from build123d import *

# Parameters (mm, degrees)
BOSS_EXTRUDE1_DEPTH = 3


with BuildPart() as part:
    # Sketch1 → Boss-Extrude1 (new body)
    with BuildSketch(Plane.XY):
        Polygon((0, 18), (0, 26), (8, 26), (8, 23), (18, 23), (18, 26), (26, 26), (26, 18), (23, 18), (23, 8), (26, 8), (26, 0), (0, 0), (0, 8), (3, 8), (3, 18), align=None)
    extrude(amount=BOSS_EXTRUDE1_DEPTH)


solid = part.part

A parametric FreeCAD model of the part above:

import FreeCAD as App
import Part
import Sketcher

doc = App.newDocument("Part")
params = doc.addObject("Spreadsheet::Sheet", "Params")
for row, (alias, value) in enumerate([
    ("sketch1_width", "3 mm"),
    ("sketch1_width2", "26 mm"),
    ("sketch1_width3", "8 mm"),
    ("pad1_length", "3 mm"),
], start=1):
    params.set(f"A{row}", alias)
    params.set(f"B{row}", "=" + value)
    params.setAlias(f"B{row}", alias)

body = doc.addObject("PartDesign::Body", "Body")

# Sketch on XY plane
sketch1 = body.newObject("Sketcher::SketchObject", "Sketch")
sketch1.AttachmentSupport = (doc.getObject("XY_Plane"), [""])
sketch1.MapMode = "FlatFace"
sketch1.addGeometry([
    Part.LineSegment(App.Vector(0, 26, 0), App.Vector(0, 18, 0)),  # 0
    Part.LineSegment(App.Vector(0, 18, 0), App.Vector(3, 18, 0)),  # 1
    Part.LineSegment(App.Vector(3, 18, 0), App.Vector(3, 8, 0)),  # 2
    Part.LineSegment(App.Vector(3, 8, 0), App.Vector(0, 8, 0)),  # 3
    Part.LineSegment(App.Vector(0, 8, 0), App.Vector(0, 0, 0)),  # 4
    Part.LineSegment(App.Vector(0, 0, 0), App.Vector(26, 0, 0)),  # 5
    Part.LineSegment(App.Vector(26, 0, 0), App.Vector(26, 8, 0)),  # 6
    Part.LineSegment(App.Vector(26, 8, 0), App.Vector(23, 8, 0)),  # 7
    Part.LineSegment(App.Vector(23, 8, 0), App.Vector(23, 18, 0)),  # 8
    Part.LineSegment(App.Vector(23, 18, 0), App.Vector(26, 18, 0)),  # 9
    Part.LineSegment(App.Vector(26, 18, 0), App.Vector(26, 26, 0)),  # 10
    Part.LineSegment(App.Vector(26, 26, 0), App.Vector(18, 26, 0)),  # 11
    Part.LineSegment(App.Vector(18, 26, 0), App.Vector(18, 23, 0)),  # 12
    Part.LineSegment(App.Vector(18, 23, 0), App.Vector(8, 23, 0)),  # 13
    Part.LineSegment(App.Vector(8, 23, 0), App.Vector(8, 26, 0)),  # 14
    Part.LineSegment(App.Vector(8, 26, 0), App.Vector(0, 26, 0)),  # 15
], False)
sketch1.addConstraint([
    Sketcher.Constraint("Coincident", 0, 2, 1, 1),
    Sketcher.Constraint("Coincident", 1, 2, 2, 1),
    Sketcher.Constraint("Coincident", 2, 2, 3, 1),
    Sketcher.Constraint("Coincident", 3, 2, 4, 1),
    Sketcher.Constraint("Coincident", 4, 2, 5, 1),
    Sketcher.Constraint("Coincident", 5, 2, 6, 1),
    Sketcher.Constraint("Coincident", 6, 2, 7, 1),
    Sketcher.Constraint("Coincident", 7, 2, 8, 1),
    Sketcher.Constraint("Coincident", 8, 2, 9, 1),
    Sketcher.Constraint("Coincident", 9, 2, 10, 1),
    Sketcher.Constraint("Coincident", 10, 2, 11, 1),
    Sketcher.Constraint("Coincident", 11, 2, 12, 1),
    Sketcher.Constraint("Coincident", 12, 2, 13, 1),
    Sketcher.Constraint("Coincident", 13, 2, 14, 1),
    Sketcher.Constraint("Coincident", 14, 2, 15, 1),
    Sketcher.Constraint("Coincident", 15, 2, 0, 1),
    Sketcher.Constraint("Vertical", 0),
    Sketcher.Constraint("Horizontal", 1),
    Sketcher.Constraint("Vertical", 2),
    Sketcher.Constraint("Horizontal", 3),
    Sketcher.Constraint("Vertical", 4),
    Sketcher.Constraint("Horizontal", 5),
    Sketcher.Constraint("Vertical", 6),
    Sketcher.Constraint("Horizontal", 7),
    Sketcher.Constraint("Vertical", 8),
    Sketcher.Constraint("Horizontal", 9),
    Sketcher.Constraint("Vertical", 10),
    Sketcher.Constraint("Horizontal", 11),
    Sketcher.Constraint("Vertical", 12),
    Sketcher.Constraint("Horizontal", 13),
    Sketcher.Constraint("Vertical", 14),
    Sketcher.Constraint("Horizontal", 15),
    Sketcher.Constraint("Coincident", 4, 2, -1, 1),
    Sketcher.Constraint("PointOnObject", 0, 2, -2),
    Sketcher.Constraint("Horizontal", 3, 2, 6, 2),
    Sketcher.Constraint("Horizontal", 1, 2, 8, 2),
    Sketcher.Constraint("Horizontal", 11, 2, 14, 2),
    Sketcher.Constraint("Vertical", 6, 2, 9, 2),
    Sketcher.Constraint("Equal", 3, 7),
    Sketcher.Constraint("Equal", 11, 15),
    Sketcher.Constraint("Equal", 15, 0),
    Sketcher.Constraint("Equal", 13, 2),
    Sketcher.Constraint("Equal", 0, 4),
    Sketcher.Constraint("Equal", 9, 12),
    Sketcher.Constraint("DistanceX", 1, 1, 1, 2, 3.0),
    Sketcher.Constraint("DistanceX", 5, 1, 5, 2, 26.0),
    Sketcher.Constraint("DistanceX", 11, 2, 11, 1, 8.0),
])
sketch1.setExpression("Constraints[44]", "Params.sketch1_width")
sketch1.setExpression("Constraints[45]", "Params.sketch1_width2")
sketch1.setExpression("Constraints[46]", "Params.sketch1_width3")
pad1 = body.newObject("PartDesign::Pad", "Pad")
pad1.Profile = sketch1
pad1.setExpression("Length", "Params.pad1_length")

doc.recompute()
